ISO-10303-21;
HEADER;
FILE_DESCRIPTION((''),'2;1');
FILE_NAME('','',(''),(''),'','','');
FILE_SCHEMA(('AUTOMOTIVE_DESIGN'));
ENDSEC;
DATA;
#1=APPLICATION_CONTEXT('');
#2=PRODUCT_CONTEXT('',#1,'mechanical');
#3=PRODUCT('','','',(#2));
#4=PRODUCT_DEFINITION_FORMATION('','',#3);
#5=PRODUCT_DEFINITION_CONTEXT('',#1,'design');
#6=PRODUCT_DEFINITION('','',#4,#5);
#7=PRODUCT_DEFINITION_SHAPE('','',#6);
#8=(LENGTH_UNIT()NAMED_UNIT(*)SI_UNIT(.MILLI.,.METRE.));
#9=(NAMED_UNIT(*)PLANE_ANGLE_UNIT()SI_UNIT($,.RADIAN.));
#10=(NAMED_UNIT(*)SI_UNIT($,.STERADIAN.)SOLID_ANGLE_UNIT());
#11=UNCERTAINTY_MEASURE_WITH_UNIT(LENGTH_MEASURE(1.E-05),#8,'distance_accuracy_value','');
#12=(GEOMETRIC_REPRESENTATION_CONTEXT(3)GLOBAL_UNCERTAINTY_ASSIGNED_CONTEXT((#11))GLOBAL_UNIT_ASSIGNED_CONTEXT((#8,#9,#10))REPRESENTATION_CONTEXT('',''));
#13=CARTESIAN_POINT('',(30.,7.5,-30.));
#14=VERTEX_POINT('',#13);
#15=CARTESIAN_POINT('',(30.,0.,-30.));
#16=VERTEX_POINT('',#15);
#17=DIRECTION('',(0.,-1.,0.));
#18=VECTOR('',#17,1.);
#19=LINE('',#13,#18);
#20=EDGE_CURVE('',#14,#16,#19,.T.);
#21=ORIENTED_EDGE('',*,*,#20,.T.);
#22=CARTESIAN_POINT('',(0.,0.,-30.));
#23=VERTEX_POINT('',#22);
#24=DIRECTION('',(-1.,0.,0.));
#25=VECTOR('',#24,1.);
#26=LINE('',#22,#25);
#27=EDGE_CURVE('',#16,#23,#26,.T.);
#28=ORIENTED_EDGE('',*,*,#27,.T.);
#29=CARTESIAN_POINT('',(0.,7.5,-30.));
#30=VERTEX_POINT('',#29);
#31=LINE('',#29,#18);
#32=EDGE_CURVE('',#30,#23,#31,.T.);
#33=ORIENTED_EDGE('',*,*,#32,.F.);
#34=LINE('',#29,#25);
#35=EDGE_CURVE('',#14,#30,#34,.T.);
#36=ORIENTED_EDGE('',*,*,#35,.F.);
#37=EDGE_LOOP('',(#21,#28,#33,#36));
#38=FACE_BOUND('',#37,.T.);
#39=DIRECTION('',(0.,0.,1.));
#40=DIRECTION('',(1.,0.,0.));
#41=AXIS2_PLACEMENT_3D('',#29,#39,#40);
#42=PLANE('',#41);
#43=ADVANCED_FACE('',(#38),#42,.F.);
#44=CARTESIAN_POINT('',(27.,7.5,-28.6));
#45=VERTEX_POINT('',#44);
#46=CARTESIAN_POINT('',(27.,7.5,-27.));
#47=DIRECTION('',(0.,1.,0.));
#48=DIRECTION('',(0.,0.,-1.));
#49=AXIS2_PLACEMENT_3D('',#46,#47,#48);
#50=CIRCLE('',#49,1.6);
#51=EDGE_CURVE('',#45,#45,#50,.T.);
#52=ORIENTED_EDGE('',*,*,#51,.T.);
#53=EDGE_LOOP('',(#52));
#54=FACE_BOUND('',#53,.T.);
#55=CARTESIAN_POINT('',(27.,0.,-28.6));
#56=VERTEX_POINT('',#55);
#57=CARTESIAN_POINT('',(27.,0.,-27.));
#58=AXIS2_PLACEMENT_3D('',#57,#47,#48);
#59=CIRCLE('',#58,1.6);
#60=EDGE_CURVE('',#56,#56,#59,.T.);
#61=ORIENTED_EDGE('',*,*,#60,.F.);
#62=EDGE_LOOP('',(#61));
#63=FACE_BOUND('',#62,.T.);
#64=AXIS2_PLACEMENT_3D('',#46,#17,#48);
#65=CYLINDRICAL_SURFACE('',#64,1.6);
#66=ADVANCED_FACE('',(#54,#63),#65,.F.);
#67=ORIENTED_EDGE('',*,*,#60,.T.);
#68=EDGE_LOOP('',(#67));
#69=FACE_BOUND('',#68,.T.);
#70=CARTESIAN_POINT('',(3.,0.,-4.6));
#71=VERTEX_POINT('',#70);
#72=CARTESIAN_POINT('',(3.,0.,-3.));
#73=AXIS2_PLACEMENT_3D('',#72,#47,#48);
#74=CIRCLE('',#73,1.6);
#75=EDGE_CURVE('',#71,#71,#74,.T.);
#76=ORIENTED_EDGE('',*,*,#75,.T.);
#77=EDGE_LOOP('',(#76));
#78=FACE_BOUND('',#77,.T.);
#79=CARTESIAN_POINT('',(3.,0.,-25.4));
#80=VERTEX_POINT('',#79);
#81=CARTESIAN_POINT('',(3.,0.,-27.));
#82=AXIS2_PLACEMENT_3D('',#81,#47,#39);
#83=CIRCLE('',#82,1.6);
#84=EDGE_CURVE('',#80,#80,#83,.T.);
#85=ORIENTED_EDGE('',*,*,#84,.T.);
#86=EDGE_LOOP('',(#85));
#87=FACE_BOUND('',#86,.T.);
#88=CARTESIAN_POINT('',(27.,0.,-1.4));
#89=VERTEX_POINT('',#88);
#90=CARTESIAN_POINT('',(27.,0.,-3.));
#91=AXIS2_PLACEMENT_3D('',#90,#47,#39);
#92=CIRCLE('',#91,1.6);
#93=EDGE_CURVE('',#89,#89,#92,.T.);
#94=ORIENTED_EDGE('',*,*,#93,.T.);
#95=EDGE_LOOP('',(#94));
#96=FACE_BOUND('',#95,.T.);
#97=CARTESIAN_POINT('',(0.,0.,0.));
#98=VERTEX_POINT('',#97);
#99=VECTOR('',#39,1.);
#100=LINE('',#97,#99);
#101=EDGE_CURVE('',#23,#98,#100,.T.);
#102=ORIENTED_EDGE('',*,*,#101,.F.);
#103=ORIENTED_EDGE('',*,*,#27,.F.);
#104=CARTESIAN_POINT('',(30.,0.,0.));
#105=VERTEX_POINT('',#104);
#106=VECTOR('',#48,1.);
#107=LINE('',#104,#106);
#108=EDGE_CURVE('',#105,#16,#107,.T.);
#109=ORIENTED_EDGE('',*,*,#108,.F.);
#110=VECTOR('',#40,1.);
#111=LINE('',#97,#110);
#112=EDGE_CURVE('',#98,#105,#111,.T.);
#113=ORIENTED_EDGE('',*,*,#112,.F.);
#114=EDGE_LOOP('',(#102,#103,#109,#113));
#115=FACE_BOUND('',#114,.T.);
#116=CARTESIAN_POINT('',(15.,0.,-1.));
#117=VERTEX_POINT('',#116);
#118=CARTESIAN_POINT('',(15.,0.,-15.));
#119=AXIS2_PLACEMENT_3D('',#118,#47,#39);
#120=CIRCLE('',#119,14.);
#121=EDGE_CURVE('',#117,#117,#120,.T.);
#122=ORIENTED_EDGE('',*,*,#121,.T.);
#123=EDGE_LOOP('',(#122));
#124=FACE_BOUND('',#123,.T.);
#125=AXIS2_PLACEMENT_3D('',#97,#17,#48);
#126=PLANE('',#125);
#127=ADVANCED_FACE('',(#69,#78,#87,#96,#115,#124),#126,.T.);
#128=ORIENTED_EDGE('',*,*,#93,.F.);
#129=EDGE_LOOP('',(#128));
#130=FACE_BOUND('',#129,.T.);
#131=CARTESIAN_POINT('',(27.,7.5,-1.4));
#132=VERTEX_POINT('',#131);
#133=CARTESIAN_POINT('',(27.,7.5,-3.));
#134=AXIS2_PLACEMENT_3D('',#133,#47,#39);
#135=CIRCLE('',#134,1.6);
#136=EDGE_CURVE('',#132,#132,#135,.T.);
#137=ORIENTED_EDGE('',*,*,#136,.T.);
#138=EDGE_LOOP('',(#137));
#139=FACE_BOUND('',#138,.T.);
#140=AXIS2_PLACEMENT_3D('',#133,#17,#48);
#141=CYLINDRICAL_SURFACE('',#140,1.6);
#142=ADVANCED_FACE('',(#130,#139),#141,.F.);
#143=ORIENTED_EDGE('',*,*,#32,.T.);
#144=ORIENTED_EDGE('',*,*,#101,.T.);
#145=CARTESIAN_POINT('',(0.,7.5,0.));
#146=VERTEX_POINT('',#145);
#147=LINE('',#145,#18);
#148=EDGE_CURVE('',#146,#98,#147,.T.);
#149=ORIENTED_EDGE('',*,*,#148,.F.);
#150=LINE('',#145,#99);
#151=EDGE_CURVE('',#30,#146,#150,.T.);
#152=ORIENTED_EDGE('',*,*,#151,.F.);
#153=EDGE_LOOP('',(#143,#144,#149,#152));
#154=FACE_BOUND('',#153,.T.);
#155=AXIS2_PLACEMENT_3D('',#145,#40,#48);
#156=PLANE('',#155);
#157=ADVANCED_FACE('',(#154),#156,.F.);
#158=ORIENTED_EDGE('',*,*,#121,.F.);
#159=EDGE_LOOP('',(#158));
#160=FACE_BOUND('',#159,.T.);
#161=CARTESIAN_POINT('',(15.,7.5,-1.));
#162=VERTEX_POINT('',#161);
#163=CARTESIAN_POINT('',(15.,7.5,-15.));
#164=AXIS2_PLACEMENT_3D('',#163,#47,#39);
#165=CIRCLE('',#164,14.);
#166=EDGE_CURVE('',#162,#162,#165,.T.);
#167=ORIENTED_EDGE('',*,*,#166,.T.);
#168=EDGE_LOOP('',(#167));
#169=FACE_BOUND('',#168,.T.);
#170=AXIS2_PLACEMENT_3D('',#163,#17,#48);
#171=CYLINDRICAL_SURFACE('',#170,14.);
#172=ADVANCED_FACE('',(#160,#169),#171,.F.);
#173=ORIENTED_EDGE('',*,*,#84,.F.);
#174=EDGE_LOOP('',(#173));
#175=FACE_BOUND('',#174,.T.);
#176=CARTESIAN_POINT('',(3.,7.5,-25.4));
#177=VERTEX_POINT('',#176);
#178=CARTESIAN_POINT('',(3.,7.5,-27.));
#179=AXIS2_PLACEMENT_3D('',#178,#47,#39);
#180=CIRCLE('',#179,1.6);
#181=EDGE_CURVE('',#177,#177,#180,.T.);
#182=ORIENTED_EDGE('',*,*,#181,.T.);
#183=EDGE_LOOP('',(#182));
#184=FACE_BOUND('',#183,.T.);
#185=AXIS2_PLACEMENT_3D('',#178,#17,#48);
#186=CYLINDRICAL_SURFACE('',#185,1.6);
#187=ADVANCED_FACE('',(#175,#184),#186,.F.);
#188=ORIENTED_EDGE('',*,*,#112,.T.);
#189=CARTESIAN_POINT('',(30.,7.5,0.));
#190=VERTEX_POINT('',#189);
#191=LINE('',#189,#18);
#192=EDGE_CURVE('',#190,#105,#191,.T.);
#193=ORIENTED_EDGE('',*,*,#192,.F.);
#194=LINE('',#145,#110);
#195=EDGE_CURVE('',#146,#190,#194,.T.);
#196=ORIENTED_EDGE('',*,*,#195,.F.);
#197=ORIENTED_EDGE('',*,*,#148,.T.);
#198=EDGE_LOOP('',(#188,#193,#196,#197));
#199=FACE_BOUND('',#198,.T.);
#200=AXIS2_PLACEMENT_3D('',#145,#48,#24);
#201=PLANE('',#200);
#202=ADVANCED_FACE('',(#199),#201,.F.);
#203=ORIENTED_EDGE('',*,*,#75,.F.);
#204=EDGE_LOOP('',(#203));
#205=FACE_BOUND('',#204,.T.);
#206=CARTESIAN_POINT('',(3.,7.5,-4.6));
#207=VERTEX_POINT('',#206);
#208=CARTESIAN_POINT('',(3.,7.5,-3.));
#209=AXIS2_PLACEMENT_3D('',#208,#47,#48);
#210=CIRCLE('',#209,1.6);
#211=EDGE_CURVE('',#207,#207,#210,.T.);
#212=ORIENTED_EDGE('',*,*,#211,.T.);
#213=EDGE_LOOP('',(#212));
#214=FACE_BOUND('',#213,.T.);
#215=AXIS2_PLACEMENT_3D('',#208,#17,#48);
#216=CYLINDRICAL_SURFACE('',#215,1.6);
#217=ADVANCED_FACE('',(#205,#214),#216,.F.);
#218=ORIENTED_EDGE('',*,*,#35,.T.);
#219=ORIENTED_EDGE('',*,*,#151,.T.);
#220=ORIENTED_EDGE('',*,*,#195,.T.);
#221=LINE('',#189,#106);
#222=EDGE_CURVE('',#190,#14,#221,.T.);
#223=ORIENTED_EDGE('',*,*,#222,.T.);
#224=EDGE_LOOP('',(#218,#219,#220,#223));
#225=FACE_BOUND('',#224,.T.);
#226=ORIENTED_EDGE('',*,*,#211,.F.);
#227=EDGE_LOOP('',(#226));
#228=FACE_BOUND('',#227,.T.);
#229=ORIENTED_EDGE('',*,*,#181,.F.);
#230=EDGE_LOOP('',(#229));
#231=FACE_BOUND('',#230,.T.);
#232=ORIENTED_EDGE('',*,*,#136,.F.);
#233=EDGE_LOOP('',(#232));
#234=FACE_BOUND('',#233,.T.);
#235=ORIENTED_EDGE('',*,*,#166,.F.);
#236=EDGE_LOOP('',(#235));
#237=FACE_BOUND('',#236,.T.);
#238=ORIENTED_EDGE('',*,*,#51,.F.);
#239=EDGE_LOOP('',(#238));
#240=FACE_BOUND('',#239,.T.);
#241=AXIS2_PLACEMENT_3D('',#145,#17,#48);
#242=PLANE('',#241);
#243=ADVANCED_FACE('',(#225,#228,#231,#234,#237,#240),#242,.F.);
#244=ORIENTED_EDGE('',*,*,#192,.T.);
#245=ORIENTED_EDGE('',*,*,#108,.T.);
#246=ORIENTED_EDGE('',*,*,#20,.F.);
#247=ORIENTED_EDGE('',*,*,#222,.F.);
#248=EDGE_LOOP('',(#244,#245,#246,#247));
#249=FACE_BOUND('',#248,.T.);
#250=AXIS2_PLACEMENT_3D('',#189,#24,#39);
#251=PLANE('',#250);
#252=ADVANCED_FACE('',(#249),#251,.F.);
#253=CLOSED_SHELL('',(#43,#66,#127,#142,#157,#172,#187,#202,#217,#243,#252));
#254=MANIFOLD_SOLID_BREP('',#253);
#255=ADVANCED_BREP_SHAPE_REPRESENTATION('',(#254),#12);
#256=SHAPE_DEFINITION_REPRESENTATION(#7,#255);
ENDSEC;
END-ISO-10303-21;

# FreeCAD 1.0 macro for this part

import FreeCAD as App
import Part
import Sketcher
Q = App.Units.Quantity


def add_polygon(sketch, points):
    """Adds a closed chain of lines whose ends are joined by coincident constraints."""
    first, n = sketch.GeometryCount, len(points)
    for a, b in zip(points, points[1:] + points[:1]):
        sketch.addGeometry(Part.LineSegment(App.Vector(*a, 0), App.Vector(*b, 0)), False)
    for i in range(n):
        sketch.addConstraint(Sketcher.Constraint("Coincident", first + i, 2, first + (i + 1) % n, 1))

doc = App.newDocument("Part")
body = doc.addObject("PartDesign::Body", "Body")

# Sketch on XZ plane
sketch1 = body.newObject("Sketcher::SketchObject", "Sketch")
sketch1.AttachmentSupport = (doc.getObject("XZ_Plane"), [""])
sketch1.MapMode = "FlatFace"
add_polygon(sketch1, [(0, -30), (0, 0), (30, 0), (30, -30)])  # lines 0-3
sketch1.addGeometry(Part.Circle(App.Vector(3, -3, 0), App.Vector(0, 0, 1), 1.6), False)  # 4
sketch1.addGeometry(Part.Circle(App.Vector(27, -3, 0), App.Vector(0, 0, 1), 1.6), False)  # 5
sketch1.addGeometry(Part.Circle(App.Vector(3, -27, 0), App.Vector(0, 0, 1), 1.6), False)  # 6
sketch1.addGeometry(Part.Circle(App.Vector(15, -15, 0), App.Vector(0, 0, 1), 14), False)  # 7
sketch1.addGeometry(Part.Circle(App.Vector(27, -27, 0), App.Vector(0, 0, 1), 1.6), False)  # 8
sketch1.addConstraint([
    Sketcher.Constraint("Vertical", 0),
    Sketcher.Constraint("Horizontal", 1),
    Sketcher.Constraint("Vertical", 2),
    Sketcher.Constraint("Horizontal", 3),
    Sketcher.Constraint("Coincident", 0, 2, -1, 1),
    Sketcher.Constraint("Equal", 4, 5),
    Sketcher.Constraint("Equal", 5, 6),
    Sketcher.Constraint("Equal", 6, 8),
    Sketcher.Constraint("Horizontal", 4, 3, 5, 3),
    Sketcher.Constraint("Horizontal", 6, 3, 8, 3),
    Sketcher.Constraint("Vertical", 4, 3, 6, 3),
    Sketcher.Constraint("Vertical", 5, 3, 8, 3),
    Sketcher.Constraint("Equal", 3, 0),
    Sketcher.Constraint("Diameter", 7, Q("28 mm")),
    Sketcher.Constraint("Diameter", 4, Q("3.2 mm")),
    Sketcher.Constraint("DistanceX", 1, 1, 1, 2, Q("30 mm")),
    Sketcher.Constraint("DistanceX", -1, 1, 4, 3, Q("3 mm")),
    Sketcher.Constraint("DistanceY", 4, 3, -1, 1, Q("3 mm")),
    Sketcher.Constraint("DistanceX", -1, 1, 5, 3, Q("27 mm")),
    Sketcher.Constraint("DistanceY", 6, 3, -1, 1, Q("27 mm")),
    Sketcher.Constraint("DistanceX", -1, 1, 7, 3, Q("15 mm")),
    Sketcher.Constraint("DistanceY", 7, 3, -1, 1, Q("15 mm")),
])
pad1 = body.newObject("PartDesign::Pad", "Pad")
pad1.Profile = sketch1
pad1.Length = 7.5
pad1.Reversed = True

doc.recompute()
